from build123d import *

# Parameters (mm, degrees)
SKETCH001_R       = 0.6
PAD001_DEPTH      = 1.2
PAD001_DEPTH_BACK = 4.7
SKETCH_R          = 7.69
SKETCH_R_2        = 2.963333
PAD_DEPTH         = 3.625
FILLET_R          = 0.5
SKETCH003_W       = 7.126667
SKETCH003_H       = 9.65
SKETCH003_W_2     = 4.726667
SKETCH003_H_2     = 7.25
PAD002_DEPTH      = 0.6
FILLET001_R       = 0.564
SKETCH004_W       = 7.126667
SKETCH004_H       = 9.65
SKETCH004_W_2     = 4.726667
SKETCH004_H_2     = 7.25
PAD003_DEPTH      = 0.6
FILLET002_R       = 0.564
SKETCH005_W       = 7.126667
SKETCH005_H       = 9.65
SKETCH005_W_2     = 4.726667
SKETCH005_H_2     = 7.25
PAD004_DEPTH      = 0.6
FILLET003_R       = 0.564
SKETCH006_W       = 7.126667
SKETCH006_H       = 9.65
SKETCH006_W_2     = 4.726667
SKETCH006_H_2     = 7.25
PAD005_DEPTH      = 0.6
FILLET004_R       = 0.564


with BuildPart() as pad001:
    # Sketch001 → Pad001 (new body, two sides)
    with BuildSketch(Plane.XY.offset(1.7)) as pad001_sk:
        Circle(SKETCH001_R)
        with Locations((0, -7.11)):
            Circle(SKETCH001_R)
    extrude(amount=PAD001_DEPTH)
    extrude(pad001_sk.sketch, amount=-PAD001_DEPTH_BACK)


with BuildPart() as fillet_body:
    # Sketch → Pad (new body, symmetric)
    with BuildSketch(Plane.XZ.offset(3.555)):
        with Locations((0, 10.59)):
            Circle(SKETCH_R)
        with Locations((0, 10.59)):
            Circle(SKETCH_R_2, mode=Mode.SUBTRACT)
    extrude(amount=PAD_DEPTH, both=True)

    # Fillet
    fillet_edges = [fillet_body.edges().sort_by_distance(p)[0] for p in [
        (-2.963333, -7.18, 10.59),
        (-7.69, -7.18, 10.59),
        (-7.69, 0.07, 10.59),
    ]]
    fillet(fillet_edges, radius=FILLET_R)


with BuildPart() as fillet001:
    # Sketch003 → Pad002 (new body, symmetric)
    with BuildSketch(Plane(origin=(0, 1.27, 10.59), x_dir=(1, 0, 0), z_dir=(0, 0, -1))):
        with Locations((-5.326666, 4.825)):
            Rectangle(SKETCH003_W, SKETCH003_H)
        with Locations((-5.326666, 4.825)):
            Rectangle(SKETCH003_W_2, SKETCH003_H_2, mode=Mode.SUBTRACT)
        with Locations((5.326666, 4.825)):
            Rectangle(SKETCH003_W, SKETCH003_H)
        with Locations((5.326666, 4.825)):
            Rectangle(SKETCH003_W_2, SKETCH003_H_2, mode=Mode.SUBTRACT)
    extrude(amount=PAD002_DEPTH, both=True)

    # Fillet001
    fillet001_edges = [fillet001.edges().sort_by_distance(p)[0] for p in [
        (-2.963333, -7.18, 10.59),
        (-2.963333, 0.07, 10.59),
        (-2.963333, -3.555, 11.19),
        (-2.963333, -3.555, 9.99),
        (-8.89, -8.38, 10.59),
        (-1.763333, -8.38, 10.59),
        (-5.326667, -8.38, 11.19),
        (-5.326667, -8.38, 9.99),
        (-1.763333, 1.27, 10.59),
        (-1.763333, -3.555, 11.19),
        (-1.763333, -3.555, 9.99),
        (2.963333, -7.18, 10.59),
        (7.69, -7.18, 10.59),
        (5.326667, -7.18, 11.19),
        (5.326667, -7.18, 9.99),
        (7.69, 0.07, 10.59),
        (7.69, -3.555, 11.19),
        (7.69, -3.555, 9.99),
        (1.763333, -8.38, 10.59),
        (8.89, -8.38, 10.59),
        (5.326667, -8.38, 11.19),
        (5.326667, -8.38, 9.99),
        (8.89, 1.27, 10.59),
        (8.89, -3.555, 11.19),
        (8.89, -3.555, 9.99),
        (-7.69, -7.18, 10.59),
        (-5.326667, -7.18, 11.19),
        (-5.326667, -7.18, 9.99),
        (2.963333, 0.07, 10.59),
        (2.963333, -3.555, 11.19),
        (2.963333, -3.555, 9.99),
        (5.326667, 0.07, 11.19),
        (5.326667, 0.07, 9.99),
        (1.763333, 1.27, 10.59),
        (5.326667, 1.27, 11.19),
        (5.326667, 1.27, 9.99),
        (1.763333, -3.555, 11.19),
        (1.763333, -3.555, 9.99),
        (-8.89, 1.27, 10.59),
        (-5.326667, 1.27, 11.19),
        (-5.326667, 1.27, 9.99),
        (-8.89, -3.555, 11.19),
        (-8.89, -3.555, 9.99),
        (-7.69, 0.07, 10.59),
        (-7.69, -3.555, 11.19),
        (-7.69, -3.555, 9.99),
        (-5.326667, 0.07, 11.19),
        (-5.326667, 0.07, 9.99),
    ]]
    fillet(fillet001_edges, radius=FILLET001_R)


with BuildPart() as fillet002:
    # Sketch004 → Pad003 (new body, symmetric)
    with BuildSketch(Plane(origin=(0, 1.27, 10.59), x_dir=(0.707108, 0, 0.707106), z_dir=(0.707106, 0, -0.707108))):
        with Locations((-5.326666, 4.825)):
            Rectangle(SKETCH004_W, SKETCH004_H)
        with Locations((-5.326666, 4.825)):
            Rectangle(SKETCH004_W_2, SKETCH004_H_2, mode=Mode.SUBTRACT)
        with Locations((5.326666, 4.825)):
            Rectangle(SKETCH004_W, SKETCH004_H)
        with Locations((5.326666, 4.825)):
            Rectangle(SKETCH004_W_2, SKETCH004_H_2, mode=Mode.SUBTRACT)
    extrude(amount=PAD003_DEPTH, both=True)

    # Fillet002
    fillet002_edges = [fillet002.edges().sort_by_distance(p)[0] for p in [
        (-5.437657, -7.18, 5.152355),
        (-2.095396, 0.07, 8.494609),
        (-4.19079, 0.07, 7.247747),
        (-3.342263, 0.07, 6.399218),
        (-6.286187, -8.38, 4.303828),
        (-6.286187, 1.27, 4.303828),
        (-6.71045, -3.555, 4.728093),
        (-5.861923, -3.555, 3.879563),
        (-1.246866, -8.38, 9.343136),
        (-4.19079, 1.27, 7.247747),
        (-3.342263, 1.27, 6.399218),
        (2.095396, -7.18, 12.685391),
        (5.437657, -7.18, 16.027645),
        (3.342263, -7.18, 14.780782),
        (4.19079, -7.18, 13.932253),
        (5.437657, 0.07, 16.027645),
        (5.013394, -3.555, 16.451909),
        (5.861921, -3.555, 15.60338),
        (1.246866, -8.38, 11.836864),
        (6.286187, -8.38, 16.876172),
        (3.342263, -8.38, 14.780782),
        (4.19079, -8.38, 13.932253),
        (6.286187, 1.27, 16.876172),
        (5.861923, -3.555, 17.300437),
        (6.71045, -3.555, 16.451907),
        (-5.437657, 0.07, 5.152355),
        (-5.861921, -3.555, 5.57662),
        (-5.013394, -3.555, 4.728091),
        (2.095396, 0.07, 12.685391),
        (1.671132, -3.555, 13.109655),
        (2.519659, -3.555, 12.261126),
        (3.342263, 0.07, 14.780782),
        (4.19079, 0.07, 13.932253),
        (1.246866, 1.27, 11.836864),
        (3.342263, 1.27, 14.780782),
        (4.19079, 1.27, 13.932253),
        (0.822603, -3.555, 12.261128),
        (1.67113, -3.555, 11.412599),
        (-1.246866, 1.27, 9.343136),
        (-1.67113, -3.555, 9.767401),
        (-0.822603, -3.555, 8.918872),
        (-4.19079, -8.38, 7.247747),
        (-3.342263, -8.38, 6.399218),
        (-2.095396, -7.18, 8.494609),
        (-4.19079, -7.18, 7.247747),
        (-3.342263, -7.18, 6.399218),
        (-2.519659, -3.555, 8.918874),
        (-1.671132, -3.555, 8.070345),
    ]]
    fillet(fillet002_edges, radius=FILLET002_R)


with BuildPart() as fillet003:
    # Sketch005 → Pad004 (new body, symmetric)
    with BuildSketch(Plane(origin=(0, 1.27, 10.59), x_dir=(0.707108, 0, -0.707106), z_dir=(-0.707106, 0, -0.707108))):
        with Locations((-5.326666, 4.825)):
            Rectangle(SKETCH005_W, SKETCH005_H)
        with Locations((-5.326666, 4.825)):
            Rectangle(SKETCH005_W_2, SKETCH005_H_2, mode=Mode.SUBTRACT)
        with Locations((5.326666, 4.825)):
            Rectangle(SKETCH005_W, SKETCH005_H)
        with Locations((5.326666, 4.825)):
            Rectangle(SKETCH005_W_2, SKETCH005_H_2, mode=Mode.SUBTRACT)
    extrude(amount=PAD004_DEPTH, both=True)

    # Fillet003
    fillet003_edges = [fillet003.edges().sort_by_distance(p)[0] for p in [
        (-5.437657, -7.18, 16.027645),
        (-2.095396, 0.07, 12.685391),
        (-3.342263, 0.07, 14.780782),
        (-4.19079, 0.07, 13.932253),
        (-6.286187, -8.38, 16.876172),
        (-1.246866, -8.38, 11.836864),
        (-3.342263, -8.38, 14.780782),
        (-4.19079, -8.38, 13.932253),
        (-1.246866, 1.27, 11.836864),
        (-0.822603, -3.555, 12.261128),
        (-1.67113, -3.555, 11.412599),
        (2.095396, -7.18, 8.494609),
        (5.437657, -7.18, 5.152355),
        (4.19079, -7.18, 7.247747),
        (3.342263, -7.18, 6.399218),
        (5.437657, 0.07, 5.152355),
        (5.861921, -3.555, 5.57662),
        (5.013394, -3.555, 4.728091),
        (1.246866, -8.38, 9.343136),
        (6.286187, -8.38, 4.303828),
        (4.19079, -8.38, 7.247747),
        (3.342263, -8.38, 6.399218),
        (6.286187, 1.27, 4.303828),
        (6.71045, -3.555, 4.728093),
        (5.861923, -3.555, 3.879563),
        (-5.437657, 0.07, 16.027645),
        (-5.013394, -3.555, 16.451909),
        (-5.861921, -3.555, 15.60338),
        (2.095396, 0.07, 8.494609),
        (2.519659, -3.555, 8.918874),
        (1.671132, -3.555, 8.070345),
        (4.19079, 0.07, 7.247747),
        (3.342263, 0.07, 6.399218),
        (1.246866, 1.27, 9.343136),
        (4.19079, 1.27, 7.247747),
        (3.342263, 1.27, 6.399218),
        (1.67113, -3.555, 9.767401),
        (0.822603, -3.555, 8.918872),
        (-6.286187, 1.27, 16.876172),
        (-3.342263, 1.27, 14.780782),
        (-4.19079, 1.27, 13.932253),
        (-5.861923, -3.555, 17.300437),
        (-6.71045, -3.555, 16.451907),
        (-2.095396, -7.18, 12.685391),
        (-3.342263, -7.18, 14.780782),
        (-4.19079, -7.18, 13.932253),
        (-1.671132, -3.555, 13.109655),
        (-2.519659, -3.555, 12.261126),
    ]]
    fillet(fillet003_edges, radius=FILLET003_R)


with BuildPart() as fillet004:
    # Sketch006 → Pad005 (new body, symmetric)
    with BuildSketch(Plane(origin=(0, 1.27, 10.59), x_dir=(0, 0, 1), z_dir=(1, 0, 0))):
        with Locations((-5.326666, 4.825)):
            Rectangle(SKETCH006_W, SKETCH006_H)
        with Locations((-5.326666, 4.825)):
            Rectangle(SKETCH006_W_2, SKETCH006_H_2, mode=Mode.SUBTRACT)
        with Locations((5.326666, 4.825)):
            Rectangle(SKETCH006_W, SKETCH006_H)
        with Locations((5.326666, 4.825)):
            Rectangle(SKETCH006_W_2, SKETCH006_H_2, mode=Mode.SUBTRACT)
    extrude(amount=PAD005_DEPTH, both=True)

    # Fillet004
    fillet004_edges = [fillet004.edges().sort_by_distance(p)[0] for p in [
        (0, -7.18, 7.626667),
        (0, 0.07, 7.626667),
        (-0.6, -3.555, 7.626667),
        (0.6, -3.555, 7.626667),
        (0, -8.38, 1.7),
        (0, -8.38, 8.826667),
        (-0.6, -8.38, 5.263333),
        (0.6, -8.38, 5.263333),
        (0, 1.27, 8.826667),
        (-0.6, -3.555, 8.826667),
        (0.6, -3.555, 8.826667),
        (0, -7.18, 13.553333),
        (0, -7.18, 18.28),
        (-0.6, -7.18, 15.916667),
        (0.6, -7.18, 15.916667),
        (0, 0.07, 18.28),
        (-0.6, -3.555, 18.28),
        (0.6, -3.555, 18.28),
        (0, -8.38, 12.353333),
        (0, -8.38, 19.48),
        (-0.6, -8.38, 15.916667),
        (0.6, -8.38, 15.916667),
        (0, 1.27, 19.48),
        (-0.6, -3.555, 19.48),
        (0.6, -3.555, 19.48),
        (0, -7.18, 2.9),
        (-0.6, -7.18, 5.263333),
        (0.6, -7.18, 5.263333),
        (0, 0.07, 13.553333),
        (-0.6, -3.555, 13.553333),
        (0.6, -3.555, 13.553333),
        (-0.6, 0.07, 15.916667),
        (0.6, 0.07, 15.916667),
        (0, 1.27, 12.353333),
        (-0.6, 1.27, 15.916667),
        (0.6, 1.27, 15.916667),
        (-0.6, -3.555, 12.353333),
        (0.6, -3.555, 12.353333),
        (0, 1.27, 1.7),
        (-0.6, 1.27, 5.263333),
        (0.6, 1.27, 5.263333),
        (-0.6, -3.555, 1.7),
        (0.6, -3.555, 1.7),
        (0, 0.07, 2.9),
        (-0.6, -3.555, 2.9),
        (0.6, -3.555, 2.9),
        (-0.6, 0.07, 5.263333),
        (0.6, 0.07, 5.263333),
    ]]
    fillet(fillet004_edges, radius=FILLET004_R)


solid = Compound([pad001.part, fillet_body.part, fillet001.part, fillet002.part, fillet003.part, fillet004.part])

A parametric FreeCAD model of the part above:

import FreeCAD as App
import Part
import Sketcher

V = App.Vector


def edges_at(feature, points):
    """Names of the edges that pass closest to the given points."""
    edges = feature.Shape.Edges
    near = lambda p: min(range(len(edges)), key=lambda i: edges[i].distToShape(Part.Vertex(*p))[0])
    return sorted({f"Edge{near(p) + 1}" for p in points})


def add_polygon(sketch, points):
    """Adds a closed chain of lines whose ends are joined by coincident constraints."""
    first, n = sketch.GeometryCount, len(points)
    for a, b in zip(points, points[1:] + points[:1]):
        sketch.addGeometry(Part.LineSegment(App.Vector(*a, 0), App.Vector(*b, 0)), False)
    for i in range(n):
        sketch.addConstraint(Sketcher.Constraint("Coincident", first + i, 2, first + (i + 1) % n, 1))

doc = App.newDocument("Part")
params = doc.addObject("Spreadsheet::Sheet", "Params")
for row, (alias, value) in enumerate([
    ("sketch1_diameter", "1.2 mm"),
    ("pad1_length", "1.2 mm"),
    ("pad1_length2", "4.7 mm"),
    ("sketch2_diameter", "15.38 mm"),
    ("pad2_length", "7.25 mm"),
    ("fillet_radius", "0.5 mm"),
    ("sketch3_height", "9.65 mm"),
    ("sketch3_height2", "7.25 mm"),
    ("pad3_length", "1.2 mm"),
    ("fillet2_radius", "0.564 mm"),
    ("sketch4_height", "9.65 mm"),
    ("sketch4_height2", "7.25 mm"),
    ("pad4_length", "1.2 mm"),
    ("fillet3_radius", "0.564 mm"),
    ("sketch5_height", "9.65 mm"),
    ("sketch5_height2", "7.25 mm"),
    ("pad5_length", "1.2 mm"),
    ("fillet4_radius", "0.564 mm"),
    ("sketch6_width", "9.65 mm"),
    ("sketch6_width2", "7.25 mm"),
    ("pad6_length", "1.2 mm"),
    ("fillet5_radius", "0.564 mm"),
], start=1):
    params.set(f"A{row}", alias)
    params.set(f"B{row}", "=" + value)
    params.setAlias(f"B{row}", alias)

body = doc.addObject("PartDesign::Body", "Body")
body.AllowCompound = True

# Sketch on XY plane
sketch1 = body.newObject("Sketcher::SketchObject", "Sketch")
sketch1.AttachmentSupport = (doc.getObject("XY_Plane"), [""])
sketch1.MapMode = "FlatFace"
sketch1.AttachmentOffset = App.Placement(V(0, 0, 1.7), App.Rotation())
sketch1.addGeometry([
    Part.Circle(V(0, 0, 0), V(0, 0, 1), 0.6),
    Part.Circle(V(0, -7.1, 0), V(0, 0, 1), 0.6),
], False)
sketch1.addConstraint([
    Sketcher.Constraint("Coincident", 0, 3, -1, 1),
    Sketcher.Constraint("Equal", 0, 1),
    Sketcher.Constraint("PointOnObject", 1, 3, -2),
    Sketcher.Constraint("Diameter", 0, 1.2),
    Sketcher.Constraint("DistanceY", 1, 3, -1, 1, 7.11),
])
sketch1.setExpression("Constraints[3]", "Params.sketch1_diameter")
pad1 = body.newObject("PartDesign::Pad", "Pad")
pad1.Profile = sketch1
pad1.Type = "TwoLengths"
pad1.setExpression("Length", "Params.pad1_length")
pad1.setExpression("Length2", "Params.pad1_length2")
body2 = doc.addObject("PartDesign::Body", "Body001")

# Sketch on XZ plane
sketch2 = body2.newObject("Sketcher::SketchObject", "Sketch001")
sketch2.AttachmentSupport = (doc.getObject("XZ_Plane001"), [""])
sketch2.MapMode = "FlatFace"
sketch2.AttachmentOffset = App.Placement(V(0, 0, 3.555), App.Rotation())
sketch2.addGeometry([
    Part.Circle(V(0, 10.6, 0), V(0, 0, 1), 7.7),
    Part.Circle(V(0, 10.6, 0), V(0, 0, 1), 3),
], False)
sketch2.addConstraint([
    Sketcher.Constraint("Coincident", 1, 3, 0, 3),
    Sketcher.Constraint("PointOnObject", 0, 3, -2),
    Sketcher.Constraint("Diameter", 0, 15.38),
    Sketcher.Constraint("DistanceY", -1, 1, 0, 3, 10.59),
    Sketcher.Constraint("Diameter", 1, 5.926666),
])
sketch2.setExpression("Constraints[2]", "Params.sketch2_diameter")
pad2 = body2.newObject("PartDesign::Pad", "Pad001")
pad2.Profile = sketch2
pad2.setExpression("Length", "Params.pad2_length")
pad2.Midplane = True
doc.recompute()

fillet = body2.newObject("PartDesign::Fillet", "Fillet")
fillet.Base = (pad2, edges_at(pad2, [(-2.963, -7.18, 10.59), (-7.69, -7.18, 10.59), (-7.69, 0.07, 10.59)]))
fillet.setExpression("Radius", "Params.fillet_radius")
body3 = doc.addObject("PartDesign::Body", "Body002")
body3.AllowCompound = True

# Sketch on XY plane
sketch3 = body3.newObject("Sketcher::SketchObject", "Sketch002")
sketch3.AttachmentSupport = (doc.getObject("XY_Plane002"), [""])
sketch3.MapMode = "FlatFace"
sketch3.AttachmentOffset = App.Placement(V(0, 0, 10.59), App.Rotation())
add_polygon(sketch3, [(-8.9, -8.4), (-8.9, 1.3), (-1.8, 1.3), (-1.8, -8.4)])  # lines 0-3
add_polygon(sketch3, [(-3, 0.1), (-7.7, 0.1), (-7.7, -7.2), (-3, -7.2)])  # lines 4-7
add_polygon(sketch3, [(1.8, -8.4), (1.8, 1.3), (8.9, 1.3), (8.9, -8.4)])  # lines 8-11
add_polygon(sketch3, [(7.7, 0.1), (3, 0.1), (3, -7.2), (7.7, -7.2)])  # lines 12-15
sketch3.addConstraint([
    Sketcher.Constraint("Vertical", 0),
    Sketcher.Constraint("Horizontal", 1),
    Sketcher.Constraint("Vertical", 2),
    Sketcher.Constraint("Horizontal", 3),
    Sketcher.Constraint("Horizontal", 4),
    Sketcher.Constraint("Vertical", 5),
    Sketcher.Constraint("Horizontal", 6),
    Sketcher.Constraint("Vertical", 7),
    Sketcher.Constraint("Vertical", 8),
    Sketcher.Constraint("Horizontal", 9),
    Sketcher.Constraint("Vertical", 10),
    Sketcher.Constraint("Horizontal", 11),
    Sketcher.Constraint("Horizontal", 12),
    Sketcher.Constraint("Vertical", 13),
    Sketcher.Constraint("Horizontal", 14),
    Sketcher.Constraint("Vertical", 15),
    Sketcher.Constraint("Symmetric", 1, 2, 8, 2, -2),
    Sketcher.Constraint("Symmetric", 3, 2, 10, 2, -2),
    Sketcher.Constraint("Symmetric", 7, 2, 12, 2, -2),
    Sketcher.Constraint("Symmetric", 5, 2, 14, 2, -2),
    Sketcher.Constraint("DistanceY", 0, 1, 0, 2, 9.65),
    Sketcher.Constraint("DistanceY", 5, 2, 5, 1, 7.25),
    Sketcher.Constraint("DistanceX", 0, 2, 4, 2, 1.2),
    Sketcher.Constraint("DistanceY", 4, 2, 0, 2, 1.2),
    Sketcher.Constraint("DistanceX", 6, 2, 2, 2, 1.2),
    Sketcher.Constraint("DistanceX", 0, 2, -1, 1, 8.89),
    Sketcher.Constraint("DistanceY", -1, 1, 0, 2, 1.27),
    Sketcher.Constraint("DistanceX", 1, 1, 1, 2, 7.126667),
])
sketch3.setExpression("Constraints[36]", "Params.sketch3_height")
sketch3.setExpression("Constraints[37]", "Params.sketch3_height2")
pad3 = body3.newObject("PartDesign::Pad", "Pad002")
pad3.Profile = sketch3
pad3.setExpression("Length", "Params.pad3_length")
pad3.Midplane = True
doc.recompute()

fillet2 = body3.newObject("PartDesign::Fillet", "Fillet001")
fillet2.Base = (pad3, ["Edge1"])
fillet2.UseAllEdges = True
fillet2.setExpression("Radius", "Params.fillet2_radius")
body4 = doc.addObject("PartDesign::Body", "Body003")
body4.AllowCompound = True

# Sketch on an angled plane
sketch4 = body4.newObject("Sketcher::SketchObject", "Sketch003")
sketch4.Placement = App.Placement(V(0, 1.27, 10.59), App.Rotation(V(0.707107781, 0, 0.707105781), V(0, -0.999999999, 0), V(0.707105781, 0, -0.707107781), "ZXY"))
add_polygon(sketch4, [(-8.9, 9.6), (-8.9, 0), (-1.8, 0), (-1.8, 9.6)])  # lines 0-3
add_polygon(sketch4, [(-3, 1.2), (-7.7, 1.2), (-7.7, 8.4), (-3, 8.4)])  # lines 4-7
add_polygon(sketch4, [(1.8, 9.6), (1.8, 0), (8.9, 0), (8.9, 9.6)])  # lines 8-11
add_polygon(sketch4, [(7.7, 1.2), (3, 1.2), (3, 8.4), (7.7, 8.4)])  # lines 12-15
sketch4.addConstraint([
    Sketcher.Constraint("Vertical", 0),
    Sketcher.Constraint("Horizontal", 1),
    Sketcher.Constraint("Vertical", 2),
    Sketcher.Constraint("Horizontal", 3),
    Sketcher.Constraint("Horizontal", 4),
    Sketcher.Constraint("Vertical", 5),
    Sketcher.Constraint("Horizontal", 6),
    Sketcher.Constraint("Vertical", 7),
    Sketcher.Constraint("Vertical", 8),
    Sketcher.Constraint("Horizontal", 9),
    Sketcher.Constraint("Vertical", 10),
    Sketcher.Constraint("Horizontal", 11),
    Sketcher.Constraint("Horizontal", 12),
    Sketcher.Constraint("Vertical", 13),
    Sketcher.Constraint("Horizontal", 14),
    Sketcher.Constraint("Vertical", 15),
    Sketcher.Constraint("Symmetric", 1, 2, 8, 2, -1, 1),
    Sketcher.Constraint("Symmetric", 0, 2, 9, 2, -2),
    Sketcher.Constraint("Symmetric", 7, 2, 12, 2, -2),
    Sketcher.Constraint("Symmetric", 5, 2, 14, 2, -2),
    Sketcher.Constraint("Horizontal", 3, 2, 10, 2),
    Sketcher.Constraint("DistanceY", 0, 2, 0, 1, 9.65),
    Sketcher.Constraint("DistanceY", 5, 1, 5, 2, 7.25),
    Sketcher.Constraint("DistanceY", -1, 1, 4, 2, 1.2),
    Sketcher.Constraint("DistanceX", 0, 2, 4, 2, 1.2),
    Sketcher.Constraint("DistanceX", 6, 2, 2, 2, 1.2),
    Sketcher.Constraint("DistanceX", 0, 2, -1, 1, 8.889999),
    Sketcher.Constraint("DistanceX", 1, 1, 1, 2, 7.126667),
])
sketch4.setExpression("Constraints[37]", "Params.sketch4_height")
sketch4.setExpression("Constraints[38]", "Params.sketch4_height2")
pad4 = body4.newObject("PartDesign::Pad", "Pad003")
pad4.Profile = sketch4
pad4.setExpression("Length", "Params.pad4_length")
pad4.Midplane = True
doc.recompute()

fillet3 = body4.newObject("PartDesign::Fillet", "Fillet002")
fillet3.Base = (pad4, ["Edge1"])
fillet3.UseAllEdges = True
fillet3.setExpression("Radius", "Params.fillet3_radius")
body5 = doc.addObject("PartDesign::Body", "Body004")
body5.AllowCompound = True

# Sketch on an angled plane
sketch5 = body5.newObject("Sketcher::SketchObject", "Sketch004")
sketch5.Placement = App.Placement(V(0, 1.27, 10.59), App.Rotation(V(0.707107781, 0, -0.707105781), V(0, -0.999999999, 0), V(-0.707105781, 0, -0.707107781), "ZXY"))
add_polygon(sketch5, [(-8.9, 9.6), (-8.9, 0), (-1.8, 0), (-1.8, 9.6)])  # lines 0-3
add_polygon(sketch5, [(-3, 1.2), (-7.7, 1.2), (-7.7, 8.4), (-3, 8.4)])  # lines 4-7
add_polygon(sketch5, [(1.8, 9.6), (1.8, 0), (8.9, 0), (8.9, 9.6)])  # lines 8-11
add_polygon(sketch5, [(7.7, 1.2), (3, 1.2), (3, 8.4), (7.7, 8.4)])  # lines 12-15
sketch5.addConstraint([
    Sketcher.Constraint("Vertical", 0),
    Sketcher.Constraint("Horizontal", 1),
    Sketcher.Constraint("Vertical", 2),
    Sketcher.Constraint("Horizontal", 3),
    Sketcher.Constraint("Horizontal", 4),
    Sketcher.Constraint("Vertical", 5),
    Sketcher.Constraint("Horizontal", 6),
    Sketcher.Constraint("Vertical", 7),
    Sketcher.Constraint("Vertical", 8),
    Sketcher.Constraint("Horizontal", 9),
    Sketcher.Constraint("Vertical", 10),
    Sketcher.Constraint("Horizontal", 11),
    Sketcher.Constraint("Horizontal", 12),
    Sketcher.Constraint("Vertical", 13),
    Sketcher.Constraint("Horizontal", 14),
    Sketcher.Constraint("Vertical", 15),
    Sketcher.Constraint("Symmetric", 1, 2, 8, 2, -1, 1),
    Sketcher.Constraint("Symmetric", 0, 2, 9, 2, -2),
    Sketcher.Constraint("Symmetric", 7, 2, 12, 2, -2),
    Sketcher.Constraint("Symmetric", 5, 2, 14, 2, -2),
    Sketcher.Constraint("Horizontal", 3, 2, 10, 2),
    Sketcher.Constraint("DistanceY", 0, 2, 0, 1, 9.65),
    Sketcher.Constraint("DistanceY", 5, 1, 5, 2, 7.25),
    Sketcher.Constraint("DistanceY", -1, 1, 4, 2, 1.2),
    Sketcher.Constraint("DistanceX", 0, 2, 4, 2, 1.2),
    Sketcher.Constraint("DistanceX", 6, 2, 2, 2, 1.2),
    Sketcher.Constraint("DistanceX", 0, 2, -1, 1, 8.889999),
    Sketcher.Constraint("DistanceX", 1, 1, 1, 2, 7.126667),
])
sketch5.setExpression("Constraints[37]", "Params.sketch5_height")
sketch5.setExpression("Constraints[38]", "Params.sketch5_height2")
pad5 = body5.newObject("PartDesign::Pad", "Pad004")
pad5.Profile = sketch5
pad5.setExpression("Length", "Params.pad5_length")
pad5.Midplane = True
doc.recompute()

fillet4 = body5.newObject("PartDesign::Fillet", "Fillet003")
fillet4.Base = (pad5, ["Edge1"])
fillet4.UseAllEdges = True
fillet4.setExpression("Radius", "Params.fillet4_radius")
body6 = doc.addObject("PartDesign::Body", "Body005")
body6.AllowCompound = True

# Sketch on YZ plane
sketch6 = body6.newObject("Sketcher::SketchObject", "Sketch005")
sketch6.AttachmentSupport = (doc.getObject("YZ_Plane005"), [""])
sketch6.MapMode = "FlatFace"
add_polygon(sketch6, [(-8.4, 1.7), (1.3, 1.7), (1.3, 8.8), (-8.4, 8.8)])  # lines 0-3
add_polygon(sketch6, [(0.1, 7.6), (0.1, 2.9), (-7.2, 2.9), (-7.2, 7.6)])  # lines 4-7
add_polygon(sketch6, [(-8.4, 12.4), (1.3, 12.4), (1.3, 19.5), (-8.4, 19.5)])  # lines 8-11
add_polygon(sketch6, [(0.1, 18.3), (0.1, 13.6), (-7.2, 13.6), (-7.2, 18.3)])  # lines 12-15
sketch6.addConstraint([
    Sketcher.Constraint("Horizontal", 0),
    Sketcher.Constraint("Vertical", 1),
    Sketcher.Constraint("Horizontal", 2),
    Sketcher.Constraint("Vertical", 3),
    Sketcher.Constraint("Vertical", 4),
    Sketcher.Constraint("Horizontal", 5),
    Sketcher.Constraint("Vertical", 6),
    Sketcher.Constraint("Horizontal", 7),
    Sketcher.Constraint("Horizontal", 8),
    Sketcher.Constraint("Vertical", 9),
    Sketcher.Constraint("Horizontal", 10),
    Sketcher.Constraint("Vertical", 11),
    Sketcher.Constraint("Vertical", 12),
    Sketcher.Constraint("Horizontal", 13),
    Sketcher.Constraint("Vertical", 14),
    Sketcher.Constraint("Horizontal", 15),
    Sketcher.Constraint("Vertical", 1, 2, 8, 2),
    Sketcher.Constraint("Vertical", 3, 2, 10, 2),
    Sketcher.Constraint("Vertical", 7, 2, 12, 2),
    Sketcher.Constraint("Vertical", 6, 2, 13, 2),
    Sketcher.Constraint("Equal", 3, 9),
    Sketcher.Constraint("Equal", 6, 12),
    Sketcher.Constraint("DistanceX", 0, 1, 0, 2, 9.65),
    Sketcher.Constraint("DistanceX", 5, 2, 5, 1, 7.25),
    Sketcher.Constraint("DistanceY", -1, 1, 0, 2, 1.700001),
    Sketcher.Constraint("DistanceY", -1, 1, 4, 2, 2.9),
    Sketcher.Constraint("DistanceX", 4, 2, 0, 2, 1.2),
    Sketcher.Constraint("DistanceY", 6, 2, 2, 2, 1.2),
    Sketcher.Constraint("DistanceY", 8, 2, 12, 2, 1.2),
    Sketcher.Constraint("DistanceX", -1, 1, 0, 2, 1.27),
    Sketcher.Constraint("DistanceY", -1, 1, 9, 2, 19.48),
    Sketcher.Constraint("DistanceY", 1, 1, 1, 2, 7.126667),
])
sketch6.setExpression("Constraints[38]", "Params.sketch6_width")
sketch6.setExpression("Constraints[39]", "Params.sketch6_width2")
pad6 = body6.newObject("PartDesign::Pad", "Pad005")
pad6.Profile = sketch6
pad6.setExpression("Length", "Params.pad6_length")
pad6.Midplane = True
doc.recompute()

fillet5 = body6.newObject("PartDesign::Fillet", "Fillet004")
fillet5.Base = (pad6, ["Edge1"])
fillet5.UseAllEdges = True
fillet5.setExpression("Radius", "Params.fillet5_radius")

doc.recompute()
